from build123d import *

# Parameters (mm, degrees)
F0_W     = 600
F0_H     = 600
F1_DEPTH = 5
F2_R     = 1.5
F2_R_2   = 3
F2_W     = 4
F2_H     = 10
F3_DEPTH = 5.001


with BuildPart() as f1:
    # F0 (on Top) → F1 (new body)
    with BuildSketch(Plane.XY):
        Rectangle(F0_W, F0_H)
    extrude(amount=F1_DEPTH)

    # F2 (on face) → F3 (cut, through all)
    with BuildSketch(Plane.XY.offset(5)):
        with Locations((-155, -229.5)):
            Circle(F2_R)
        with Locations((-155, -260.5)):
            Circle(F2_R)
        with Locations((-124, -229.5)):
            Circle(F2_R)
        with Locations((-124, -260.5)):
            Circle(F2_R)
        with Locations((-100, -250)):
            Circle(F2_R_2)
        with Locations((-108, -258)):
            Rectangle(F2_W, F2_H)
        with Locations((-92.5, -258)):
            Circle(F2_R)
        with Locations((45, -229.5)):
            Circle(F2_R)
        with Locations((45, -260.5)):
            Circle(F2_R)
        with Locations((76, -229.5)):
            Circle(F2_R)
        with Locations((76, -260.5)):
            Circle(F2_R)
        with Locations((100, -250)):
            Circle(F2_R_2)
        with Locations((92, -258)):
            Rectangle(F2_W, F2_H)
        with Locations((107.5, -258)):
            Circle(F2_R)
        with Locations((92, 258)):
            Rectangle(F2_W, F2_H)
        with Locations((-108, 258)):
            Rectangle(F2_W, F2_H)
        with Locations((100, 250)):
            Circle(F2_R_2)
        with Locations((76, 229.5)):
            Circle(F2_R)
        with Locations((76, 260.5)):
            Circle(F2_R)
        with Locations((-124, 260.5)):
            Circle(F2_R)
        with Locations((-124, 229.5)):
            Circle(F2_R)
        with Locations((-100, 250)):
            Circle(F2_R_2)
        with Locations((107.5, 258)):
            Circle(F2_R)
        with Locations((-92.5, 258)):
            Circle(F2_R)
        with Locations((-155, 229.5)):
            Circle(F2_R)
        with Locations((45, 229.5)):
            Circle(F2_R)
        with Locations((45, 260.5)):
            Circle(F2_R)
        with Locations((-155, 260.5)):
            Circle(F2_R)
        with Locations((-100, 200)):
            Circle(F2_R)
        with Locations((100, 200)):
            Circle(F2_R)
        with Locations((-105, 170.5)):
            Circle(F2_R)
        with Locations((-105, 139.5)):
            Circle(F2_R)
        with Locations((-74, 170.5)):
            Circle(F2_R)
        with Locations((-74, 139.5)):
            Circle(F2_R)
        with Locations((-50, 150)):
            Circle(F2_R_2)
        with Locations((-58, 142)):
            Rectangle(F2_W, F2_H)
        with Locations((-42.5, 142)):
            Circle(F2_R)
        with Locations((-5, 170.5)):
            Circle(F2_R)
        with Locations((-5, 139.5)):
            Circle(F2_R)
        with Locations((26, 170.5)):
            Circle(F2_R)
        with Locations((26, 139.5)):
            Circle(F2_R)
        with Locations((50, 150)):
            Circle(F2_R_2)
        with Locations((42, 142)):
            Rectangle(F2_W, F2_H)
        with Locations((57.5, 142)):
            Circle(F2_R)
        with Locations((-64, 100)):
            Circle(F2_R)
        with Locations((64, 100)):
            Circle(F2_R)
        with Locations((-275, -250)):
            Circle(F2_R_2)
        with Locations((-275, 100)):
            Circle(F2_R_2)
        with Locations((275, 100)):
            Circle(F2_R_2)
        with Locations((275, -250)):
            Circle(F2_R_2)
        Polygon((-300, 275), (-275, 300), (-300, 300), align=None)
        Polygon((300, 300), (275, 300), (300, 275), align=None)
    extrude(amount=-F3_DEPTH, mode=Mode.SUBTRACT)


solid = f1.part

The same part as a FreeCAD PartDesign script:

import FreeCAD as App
import Part
import Sketcher
from FreeCAD import Vector
Q = App.Units.Quantity

doc = App.newDocument("Part")
body = doc.addObject("PartDesign::Body", "Body")

# Sketch on XY plane
sketch1 = body.newObject("Sketcher::SketchObject", "Sketch")
sketch1.AttachmentSupport = (doc.getObject("XY_Plane"), [""])
sketch1.MapMode = "FlatFace"
sketch1.addGeometry([
    Part.LineSegment(Vector(-300, 300, 0), Vector(-300, -300, 0)),
    Part.LineSegment(Vector(-300, -300, 0), Vector(300, -300, 0)),
    Part.LineSegment(Vector(300, -300, 0), Vector(300, 300, 0)),
    Part.LineSegment(Vector(300, 300, 0), Vector(-300, 300, 0)),
], False)
sketch1.addConstraint([
    Sketcher.Constraint("Coincident", 0, 2, 1, 1),
    Sketcher.Constraint("Coincident", 1, 2, 2, 1),
    Sketcher.Constraint("Coincident", 2, 2, 3, 1),
    Sketcher.Constraint("Coincident", 3, 2, 0, 1),
    Sketcher.Constraint("Vertical", 0),
    Sketcher.Constraint("Horizontal", 1),
    Sketcher.Constraint("Vertical", 2),
    Sketcher.Constraint("Horizontal", 3),
    Sketcher.Constraint("Symmetric", 0, 2, 2, 2, -1, 1),
    Sketcher.Constraint("Equal", 3, 0),
    Sketcher.Constraint("DistanceX", 1, 1, 1, 2, Q("600 mm")),
])
pad1 = body.newObject("PartDesign::Pad", "Pad")
pad1.Profile = sketch1
pad1.Length = 5

# Sketch on XY plane
sketch2 = body.newObject("Sketcher::SketchObject", "Sketch001")
sketch2.AttachmentSupport = (doc.getObject("XY_Plane"), [""])
sketch2.MapMode = "FlatFace"
sketch2.AttachmentOffset = App.Placement(Vector(0, 0, 5), App.Rotation())
sketch2.addGeometry([
    Part.Circle(Vector(-155, -229.5, 0), Vector(0, 0, 1), 1.5),  # 0
    Part.Circle(Vector(-155, -260.5, 0), Vector(0, 0, 1), 1.5),  # 1
    Part.Circle(Vector(-124, -229.5, 0), Vector(0, 0, 1), 1.5),  # 2
    Part.Circle(Vector(-124, -260.5, 0), Vector(0, 0, 1), 1.5),  # 3
    Part.Circle(Vector(-100, -250, 0), Vector(0, 0, 1), 3),  # 4
    Part.LineSegment(Vector(-110, -253, 0), Vector(-110, -263, 0)),  # 5
    Part.LineSegment(Vector(-110, -263, 0), Vector(-106, -263, 0)),  # 6
    Part.LineSegment(Vector(-106, -263, 0), Vector(-106, -253, 0)),  # 7
    Part.LineSegment(Vector(-106, -253, 0), Vector(-110, -253, 0)),  # 8
    Part.Circle(Vector(-92.5, -258, 0), Vector(0, 0, 1), 1.5),  # 9
    Part.Circle(Vector(45, -229.5, 0), Vector(0, 0, 1), 1.5),  # 10
    Part.Circle(Vector(45, -260.5, 0), Vector(0, 0, 1), 1.5),  # 11
    Part.Circle(Vector(76, -229.5, 0), Vector(0, 0, 1), 1.5),  # 12
    Part.Circle(Vector(76, -260.5, 0), Vector(0, 0, 1), 1.5),  # 13
    Part.Circle(Vector(100, -250, 0), Vector(0, 0, 1), 3),  # 14
    Part.LineSegment(Vector(90, -253, 0), Vector(90, -263, 0)),  # 15
    Part.LineSegment(Vector(90, -263, 0), Vector(94, -263, 0)),  # 16
    Part.LineSegment(Vector(94, -263, 0), Vector(94, -253, 0)),  # 17
    Part.LineSegment(Vector(94, -253, 0), Vector(90, -253, 0)),  # 18
    Part.Circle(Vector(107.5, -258, 0), Vector(0, 0, 1), 1.5),  # 19
    Part.LineSegment(Vector(90, 263, 0), Vector(90, 253, 0)),  # 20
    Part.LineSegment(Vector(90, 253, 0), Vector(94, 253, 0)),  # 21
    Part.LineSegment(Vector(94, 253, 0), Vector(94, 263, 0)),  # 22
    Part.LineSegment(Vector(94, 263, 0), Vector(90, 263, 0)),  # 23
    Part.LineSegment(Vector(-110, 263, 0), Vector(-110, 253, 0)),  # 24
    Part.LineSegment(Vector(-110, 253, 0), Vector(-106, 253, 0)),  # 25
    Part.LineSegment(Vector(-106, 253, 0), Vector(-106, 263, 0)),  # 26
    Part.LineSegment(Vector(-106, 263, 0), Vector(-110, 263, 0)),  # 27
    Part.Circle(Vector(100, 250, 0), Vector(0, 0, 1), 3),  # 28
    Part.Circle(Vector(76, 229.5, 0), Vector(0, 0, 1), 1.5),  # 29
    Part.Circle(Vector(76, 260.5, 0), Vector(0, 0, 1), 1.5),  # 30
    Part.Circle(Vector(-124, 260.5, 0), Vector(0, 0, 1), 1.5),  # 31
    Part.Circle(Vector(-124, 229.5, 0), Vector(0, 0, 1), 1.5),  # 32
    Part.Circle(Vector(-100, 250, 0), Vector(0, 0, 1), 3),  # 33
    Part.Circle(Vector(107.5, 258, 0), Vector(0, 0, 1), 1.5),  # 34
    Part.Circle(Vector(-92.5, 258, 0), Vector(0, 0, 1), 1.5),  # 35
    Part.Circle(Vector(-155, 229.5, 0), Vector(0, 0, 1), 1.5),  # 36
    Part.Circle(Vector(45, 229.5, 0), Vector(0, 0, 1), 1.5),  # 37
    Part.Circle(Vector(45, 260.5, 0), Vector(0, 0, 1), 1.5),  # 38
    Part.Circle(Vector(-155, 260.5, 0), Vector(0, 0, 1), 1.5),  # 39
    Part.Circle(Vector(-100, 200, 0), Vector(0, 0, 1), 1.5),  # 40
    Part.Circle(Vector(100, 200, 0), Vector(0, 0, 1), 1.5),  # 41
    Part.Circle(Vector(-105, 170.5, 0), Vector(0, 0, 1), 1.5),  # 42
    Part.Circle(Vector(-105, 139.5, 0), Vector(0, 0, 1), 1.5),  # 43
    Part.Circle(Vector(-74, 170.5, 0), Vector(0, 0, 1), 1.5),  # 44
    Part.Circle(Vector(-74, 139.5, 0), Vector(0, 0, 1), 1.5),  # 45
    Part.Circle(Vector(-50, 150, 0), Vector(0, 0, 1), 3),  # 46
    Part.LineSegment(Vector(-60, 147, 0), Vector(-60, 137, 0)),  # 47
    Part.LineSegment(Vector(-60, 137, 0), Vector(-56, 137, 0)),  # 48
    Part.LineSegment(Vector(-56, 137, 0), Vector(-56, 147, 0)),  # 49
    Part.LineSegment(Vector(-56, 147, 0), Vector(-60, 147, 0)),  # 50
    Part.Circle(Vector(-42.5, 142, 0), Vector(0, 0, 1), 1.5),  # 51
    Part.Circle(Vector(-5, 170.5, 0), Vector(0, 0, 1), 1.5),  # 52
    Part.Circle(Vector(-5, 139.5, 0), Vector(0, 0, 1), 1.5),  # 53
    Part.Circle(Vector(26, 170.5, 0), Vector(0, 0, 1), 1.5),  # 54
    Part.Circle(Vector(26, 139.5, 0), Vector(0, 0, 1), 1.5),  # 55
    Part.Circle(Vector(50, 150, 0), Vector(0, 0, 1), 3),  # 56
    Part.LineSegment(Vector(40, 147, 0), Vector(40, 137, 0)),  # 57
    Part.LineSegment(Vector(40, 137, 0), Vector(44, 137, 0)),  # 58
    Part.LineSegment(Vector(44, 137, 0), Vector(44, 147, 0)),  # 59
    Part.LineSegment(Vector(44, 147, 0), Vector(40, 147, 0)),  # 60
    Part.Circle(Vector(57.5, 142, 0), Vector(0, 0, 1), 1.5),  # 61
    Part.Circle(Vector(-64, 100, 0), Vector(0, 0, 1), 1.5),  # 62
    Part.Circle(Vector(64, 100, 0), Vector(0, 0, 1), 1.5),  # 63
    Part.Circle(Vector(-275, -250, 0), Vector(0, 0, 1), 3),  # 64
    Part.Circle(Vector(-275, 100, 0), Vector(0, 0, 1), 3),  # 65
    Part.Circle(Vector(275, 100, 0), Vector(0, 0, 1), 3),  # 66
    Part.Circle(Vector(275, -250, 0), Vector(0, 0, 1), 3),  # 67
    Part.LineSegment(Vector(-300, 275, 0), Vector(-275, 300, 0)),  # 68
    Part.LineSegment(Vector(-275, 300, 0), Vector(-300, 300, 0)),  # 69
    Part.LineSegment(Vector(-300, 300, 0), Vector(-300, 275, 0)),  # 70
    Part.LineSegment(Vector(300, 300, 0), Vector(275, 300, 0)),  # 71
    Part.LineSegment(Vector(275, 300, 0), Vector(300, 275, 0)),  # 72
    Part.LineSegment(Vector(300, 275, 0), Vector(300, 300, 0)),  # 73
], False)
sketch2.addConstraint([
    Sketcher.Constraint("Coincident", 5, 2, 6, 1),
    Sketcher.Constraint("Coincident", 6, 2, 7, 1),
    Sketcher.Constraint("Coincident", 7, 2, 8, 1),
    Sketcher.Constraint("Coincident", 8, 2, 5, 1),
    Sketcher.Constraint("Coincident", 15, 2, 16, 1),
    Sketcher.Constraint("Coincident", 16, 2, 17, 1),
    Sketcher.Constraint("Coincident", 17, 2, 18, 1),
    Sketcher.Constraint("Coincident", 18, 2, 15, 1),
    Sketcher.Constraint("Coincident", 20, 2, 21, 1),
    Sketcher.Constraint("Coincident", 21, 2, 22, 1),
    Sketcher.Constraint("Coincident", 22, 2, 23, 1),
    Sketcher.Constraint("Coincident", 23, 2, 20, 1),
    Sketcher.Constraint("Coincident", 24, 2, 25, 1),
    Sketcher.Constraint("Coincident", 25, 2, 26, 1),
    Sketcher.Constraint("Coincident", 26, 2, 27, 1),
    Sketcher.Constraint("Coincident", 27, 2, 24, 1),
    Sketcher.Constraint("Coincident", 47, 2, 48, 1),
    Sketcher.Constraint("Coincident", 48, 2, 49, 1),
    Sketcher.Constraint("Coincident", 49, 2, 50, 1),
    Sketcher.Constraint("Coincident", 50, 2, 47, 1),
    Sketcher.Constraint("Coincident", 57, 2, 58, 1),
    Sketcher.Constraint("Coincident", 58, 2, 59, 1),
    Sketcher.Constraint("Coincident", 59, 2, 60, 1),
    Sketcher.Constraint("Coincident", 60, 2, 57, 1),
    Sketcher.Constraint("Coincident", 68, 2, 69, 1),
    Sketcher.Constraint("Coincident", 69, 2, 70, 1),
    Sketcher.Constraint("Coincident", 70, 2, 68, 1),
    Sketcher.Constraint("Coincident", 71, 2, 72, 1),
    Sketcher.Constraint("Coincident", 72, 2, 73, 1),
    Sketcher.Constraint("Coincident", 73, 2, 71, 1),
    Sketcher.Constraint("Vertical", 5),
    Sketcher.Constraint("Horizontal", 6),
    Sketcher.Constraint("Vertical", 7),
    Sketcher.Constraint("Horizontal", 8),
    Sketcher.Constraint("Vertical", 15),
    Sketcher.Constraint("Horizontal", 16),
    Sketcher.Constraint("Vertical", 17),
    Sketcher.Constraint("Horizontal", 18),
    Sketcher.Constraint("Vertical", 20),
    Sketcher.Constraint("Horizontal", 21),
    Sketcher.Constraint("Vertical", 22),
    Sketcher.Constraint("Horizontal", 23),
    Sketcher.Constraint("Vertical", 24),
    Sketcher.Constraint("Horizontal", 25),
    Sketcher.Constraint("Vertical", 26),
    Sketcher.Constraint("Horizontal", 27),
    Sketcher.Constraint("Vertical", 47),
    Sketcher.Constraint("Horizontal", 48),
    Sketcher.Constraint("Vertical", 49),
    Sketcher.Constraint("Horizontal", 50),
    Sketcher.Constraint("Vertical", 57),
    Sketcher.Constraint("Horizontal", 58),
    Sketcher.Constraint("Vertical", 59),
    Sketcher.Constraint("Horizontal", 60),
    Sketcher.Constraint("Horizontal", 69),
    Sketcher.Constraint("Vertical", 70),
    Sketcher.Constraint("Horizontal", 71),
    Sketcher.Constraint("Vertical", 73),
    Sketcher.Constraint("Equal", 0, 1),
    Sketcher.Constraint("Equal", 1, 2),
    Sketcher.Constraint("Equal", 2, 3),
    Sketcher.Constraint("Equal", 3, 9),
    Sketcher.Constraint("Equal", 9, 10),
    Sketcher.Constraint("Equal", 10, 11),
    Sketcher.Constraint("Equal", 11, 12),
    Sketcher.Constraint("Equal", 12, 13),
    Sketcher.Constraint("Equal", 4, 14),
    Sketcher.Constraint("Equal", 13, 19),
    Sketcher.Constraint("Equal", 14, 28),
    Sketcher.Constraint("Equal", 19, 29),
    Sketcher.Constraint("Equal", 29, 30),
    Sketcher.Constraint("Equal", 30, 31),
    Sketcher.Constraint("Equal", 31, 32),
    Sketcher.Constraint("Equal", 28, 33),
    Sketcher.Constraint("Equal", 32, 34),
    Sketcher.Constraint("Equal", 34, 35),
    Sketcher.Constraint("Equal", 35, 36),
    Sketcher.Constraint("Equal", 36, 37),
    Sketcher.Constraint("Equal", 37, 38),
    Sketcher.Constraint("Equal", 38, 39),
    Sketcher.Constraint("Equal", 39, 40),
    Sketcher.Constraint("Equal", 40, 41),
    Sketcher.Constraint("Equal", 41, 42),
    Sketcher.Constraint("Equal", 42, 43),
    Sketcher.Constraint("Equal", 43, 44),
    Sketcher.Constraint("Equal", 44, 45),
    Sketcher.Constraint("Equal", 33, 46),
    Sketcher.Constraint("Equal", 45, 51),
    Sketcher.Constraint("Equal", 51, 52),
    Sketcher.Constraint("Equal", 52, 53),
    Sketcher.Constraint("Equal", 53, 54),
    Sketcher.Constraint("Equal", 54, 55),
    Sketcher.Constraint("Equal", 46, 56),
    Sketcher.Constraint("Equal", 55, 61),
    Sketcher.Constraint("Equal", 61, 62),
    Sketcher.Constraint("Equal", 62, 63),
    Sketcher.Constraint("Equal", 56, 64),
    Sketcher.Constraint("Equal", 64, 65),
    Sketcher.Constraint("Equal", 65, 66),
    Sketcher.Constraint("Equal", 66, 67),
    Sketcher.Constraint("Symmetric", 4, 3, 28, 3, -1, 1),
    Sketcher.Constraint("Symmetric", 14, 3, 33, 3, -1, 1),
    Sketcher.Constraint("Symmetric", 4, 3, 14, 3, -2),
    Sketcher.Constraint("Symmetric", 40, 3, 41, 3, -2),
    Sketcher.Constraint("Symmetric", 46, 3, 56, 3, -2),
    Sketcher.Constraint("Symmetric", 62, 3, 63, 3, -2),
    Sketcher.Constraint("Symmetric", 65, 3, 66, 3, -2),
    Sketcher.Constraint("Symmetric", 64, 3, 67, 3, -2),
    Sketcher.Constraint("Symmetric", 68, 2, 71, 2, -2),
    Sketcher.Constraint("Symmetric", 70, 2, 72, 2, -2),
    Sketcher.Constraint("Symmetric", 12, 3, 29, 3, -1),
    Sketcher.Constraint("Symmetric", 13, 3, 30, 3, -1),
    Sketcher.Constraint("Symmetric", 3, 3, 31, 3, -1),
    Sketcher.Constraint("Symmetric", 2, 3, 32, 3, -1),
    Sketcher.Constraint("Symmetric", 19, 3, 34, 3, -1),
    Sketcher.Constraint("Symmetric", 9, 3, 35, 3, -1),
    Sketcher.Constraint("Symmetric", 0, 3, 36, 3, -1),
    Sketcher.Constraint("Symmetric", 10, 3, 37, 3, -1),
    Sketcher.Constraint("Symmetric", 11, 3, 38, 3, -1),
    Sketcher.Constraint("Symmetric", 1, 3, 39, 3, -1),
    Sketcher.Constraint("Symmetric", 18, 2, 20, 2, -1),
    Sketcher.Constraint("Symmetric", 16, 2, 22, 2, -1),
    Sketcher.Constraint("Symmetric", 8, 2, 24, 2, -1),
    Sketcher.Constraint("Symmetric", 6, 2, 26, 2, -1),
    Sketcher.Constraint("Perpendicular", 68, 72),
    Sketcher.Constraint("Horizontal", 0, 3, 2, 3),
    Sketcher.Constraint("Horizontal", 1, 3, 3, 3),
    Sketcher.Constraint("Horizontal", 2, 3, 10, 3),
    Sketcher.Constraint("Horizontal", 3, 3, 11, 3),
    Sketcher.Constraint("Horizontal", 10, 3, 12, 3),
    Sketcher.Constraint("Horizontal", 11, 3, 13, 3),
    Sketcher.Constraint("Horizontal", 9, 3, 19, 3),
    Sketcher.Constraint("Horizontal", 42, 3, 44, 3),
    Sketcher.Constraint("Horizontal", 43, 3, 45, 3),
    Sketcher.Constraint("Horizontal", 44, 3, 52, 3),
    Sketcher.Constraint("Horizontal", 45, 3, 53, 3),
    Sketcher.Constraint("Horizontal", 52, 3, 54, 3),
    Sketcher.Constraint("Horizontal", 53, 3, 55, 3),
    Sketcher.Constraint("Horizontal", 51, 3, 61, 3),
    Sketcher.Constraint("Horizontal", 14, 3, 64, 3),
    Sketcher.Constraint("Horizontal", 63, 3, 65, 3),
    Sketcher.Constraint("Horizontal", 6, 2, 15, 2),
    Sketcher.Constraint("Horizontal", 8, 2, 17, 2),
    Sketcher.Constraint("Horizontal", 48, 2, 57, 2),
    Sketcher.Constraint("Horizontal", 50, 2, 59, 2),
    Sketcher.Constraint("Vertical", 0, 3, 1, 3),
    Sketcher.Constraint("Vertical", 2, 3, 3, 3),
    Sketcher.Constraint("Vertical", 10, 3, 11, 3),
    Sketcher.Constraint("Vertical", 12, 3, 13, 3),
    Sketcher.Constraint("Vertical", 33, 3, 40, 3),
    Sketcher.Constraint("Vertical", 42, 3, 43, 3),
    Sketcher.Constraint("Vertical", 44, 3, 45, 3),
    Sketcher.Constraint("Vertical", 52, 3, 53, 3),
    Sketcher.Constraint("Vertical", 54, 3, 55, 3),
    Sketcher.Constraint("Vertical", 64, 3, 65, 3),
    Sketcher.Constraint("Vertical", 65, 3, 68, 2),
    Sketcher.Constraint("Equal", 8, 16),
    Sketcher.Constraint("Equal", 27, 48),
    Sketcher.Constraint("Equal", 50, 58),
    Sketcher.Constraint("Equal", 26, 47),
    Sketcher.Constraint("Diameter", 0, Q("3 mm")),
    Sketcher.Constraint("Diameter", 4, Q("6 mm")),
    Sketcher.Constraint("DistanceX", 6, 1, 6, 2, Q("4 mm")),
    Sketcher.Constraint("DistanceX", 69, 2, 69, 1, Q("25 mm")),
    Sketcher.Constraint("DistanceY", 5, 2, 5, 1, Q("10 mm")),
    Sketcher.Constraint("DistanceX", 0, 3, -1, 1, Q("155 mm")),
    Sketcher.Constraint("DistanceX", 2, 3, -1, 1, Q("124 mm")),
    Sketcher.Constraint("DistanceX", 4, 3, -1, 1, Q("100 mm")),
    Sketcher.Constraint("DistanceY", 4, 3, -1, 1, Q("250 mm")),
    Sketcher.Constraint("DistanceY", 9, 3, -1, 1, Q("258 mm")),
    Sketcher.Constraint("DistanceX", -1, 1, 10, 3, Q("45 mm")),
    Sketcher.Constraint("DistanceX", -1, 1, 12, 3, Q("76 mm")),
    Sketcher.Constraint("DistanceY", -1, 1, 40, 3, Q("200 mm")),
    Sketcher.Constraint("DistanceX", 42, 3, -1, 1, Q("105 mm")),
    Sketcher.Constraint("DistanceX", 44, 3, -1, 1, Q("74 mm")),
    Sketcher.Constraint("DistanceX", 46, 3, -1, 1, Q("50 mm")),
    Sketcher.Constraint("DistanceY", -1, 1, 46, 3, Q("150 mm")),
    Sketcher.Constraint("DistanceY", -1, 1, 51, 3, Q("142 mm")),
    Sketcher.Constraint("DistanceX", 52, 3, -1, 1, Q("5 mm")),
    Sketcher.Constraint("DistanceX", -1, 1, 54, 3, Q("26 mm")),
    Sketcher.Constraint("DistanceX", 62, 3, -1, 1, Q("64 mm")),
    Sketcher.Constraint("DistanceY", -1, 1, 62, 3, Q("100 mm")),
    Sketcher.Constraint("DistanceX", 64, 3, -1, 1, Q("275 mm")),
    Sketcher.Constraint("DistanceX", 5, 2, -1, 1, Q("110 mm")),
    Sketcher.Constraint("DistanceY", 5, 2, -1, 1, Q("263 mm")),
    Sketcher.Constraint("DistanceX", -1, 1, 15, 2, Q("90 mm")),
    Sketcher.Constraint("DistanceX", 47, 2, -1, 1, Q("60 mm")),
    Sketcher.Constraint("DistanceY", -1, 1, 47, 2, Q("137 mm")),
    Sketcher.Constraint("DistanceX", -1, 1, 57, 2, Q("40 mm")),
    Sketcher.Constraint("DistanceY", -1, 1, 68, 2, Q("300 mm")),
    Sketcher.Constraint("DistanceY", 0, 3, -1, 1, Q("229.5 mm")),
    Sketcher.Constraint("DistanceY", 1, 3, -1, 1, Q("260.5 mm")),
    Sketcher.Constraint("DistanceX", 9, 3, -1, 1, Q("92.5 mm")),
    Sketcher.Constraint("DistanceX", -1, 1, 19, 3, Q("107.5 mm")),
    Sketcher.Constraint("DistanceY", -1, 1, 42, 3, Q("170.5 mm")),
    Sketcher.Constraint("DistanceY", -1, 1, 43, 3, Q("139.5 mm")),
    Sketcher.Constraint("DistanceX", 51, 3, -1, 1, Q("42.5 mm")),
    Sketcher.Constraint("DistanceX", -1, 1, 61, 3, Q("57.5 mm")),
])
pocket1 = body.newObject("PartDesign::Pocket", "Pocket")
pocket1.Profile = sketch2
pocket1.Type = "ThroughAll"

doc.recompute()
